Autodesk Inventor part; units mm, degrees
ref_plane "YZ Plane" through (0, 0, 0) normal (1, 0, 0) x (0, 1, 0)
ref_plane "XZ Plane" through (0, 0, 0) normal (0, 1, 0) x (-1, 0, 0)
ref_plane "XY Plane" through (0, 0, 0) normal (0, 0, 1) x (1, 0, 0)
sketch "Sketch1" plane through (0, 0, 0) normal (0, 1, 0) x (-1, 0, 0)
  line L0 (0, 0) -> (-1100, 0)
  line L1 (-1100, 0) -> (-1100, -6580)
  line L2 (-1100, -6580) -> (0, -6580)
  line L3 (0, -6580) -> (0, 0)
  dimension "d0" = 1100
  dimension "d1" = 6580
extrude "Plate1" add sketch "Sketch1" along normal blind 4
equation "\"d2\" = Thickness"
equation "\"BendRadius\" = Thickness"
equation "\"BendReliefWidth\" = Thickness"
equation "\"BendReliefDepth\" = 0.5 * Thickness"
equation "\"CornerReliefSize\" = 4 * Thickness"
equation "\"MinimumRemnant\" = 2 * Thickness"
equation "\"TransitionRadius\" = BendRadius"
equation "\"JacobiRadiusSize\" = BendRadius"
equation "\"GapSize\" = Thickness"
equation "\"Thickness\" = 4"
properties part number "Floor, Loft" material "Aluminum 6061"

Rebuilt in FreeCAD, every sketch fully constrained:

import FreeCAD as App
import Part
import Sketcher

doc = App.newDocument("Part")
body = doc.addObject("PartDesign::Body", "Body")

sketch1 = doc.addObject("Sketcher::SketchObject", "Sketch")
body.addObject(sketch1)
sketch1.AttachmentSupport = (doc.XZ_Plane, [""])
sketch1.MapMode = "FlatFace"
sketch1.addGeometry(Part.LineSegment(App.Vector(0, -6580, 0), App.Vector(0, 0, 0)), False)
sketch1.addGeometry(Part.LineSegment(App.Vector(0, 0, 0), App.Vector(1100, 0, 0)), False)
sketch1.addGeometry(Part.LineSegment(App.Vector(1100, 0, 0), App.Vector(1100, -6580, 0)), False)
sketch1.addGeometry(Part.LineSegment(App.Vector(1100, -6580, 0), App.Vector(0, -6580, 0)), False)
sketch1.addConstraint(Sketcher.Constraint("Coincident", 0, 2, 1, 1))
sketch1.addConstraint(Sketcher.Constraint("Coincident", 1, 2, 2, 1))
sketch1.addConstraint(Sketcher.Constraint("Coincident", 2, 2, 3, 1))
sketch1.addConstraint(Sketcher.Constraint("Coincident", 3, 2, 0, 1))
sketch1.addConstraint(Sketcher.Constraint("Vertical", 0))
sketch1.addConstraint(Sketcher.Constraint("Horizontal", 1))
sketch1.addConstraint(Sketcher.Constraint("Vertical", 2))
sketch1.addConstraint(Sketcher.Constraint("Horizontal", 3))
sketch1.addConstraint(Sketcher.Constraint("Coincident", 0, 2, -1, 1))
sketch1.addConstraint(Sketcher.Constraint("DistanceX", 1, 1, 1, 2, 1100.0))
sketch1.addConstraint(Sketcher.Constraint("DistanceY", 0, 1, 0, 2, 6580.0))
pad1 = doc.addObject("PartDesign::Pad", "Pad")
body.addObject(pad1)
pad1.Profile = sketch1
pad1.Length = 4
pad1.Reversed = True

doc.recompute()
